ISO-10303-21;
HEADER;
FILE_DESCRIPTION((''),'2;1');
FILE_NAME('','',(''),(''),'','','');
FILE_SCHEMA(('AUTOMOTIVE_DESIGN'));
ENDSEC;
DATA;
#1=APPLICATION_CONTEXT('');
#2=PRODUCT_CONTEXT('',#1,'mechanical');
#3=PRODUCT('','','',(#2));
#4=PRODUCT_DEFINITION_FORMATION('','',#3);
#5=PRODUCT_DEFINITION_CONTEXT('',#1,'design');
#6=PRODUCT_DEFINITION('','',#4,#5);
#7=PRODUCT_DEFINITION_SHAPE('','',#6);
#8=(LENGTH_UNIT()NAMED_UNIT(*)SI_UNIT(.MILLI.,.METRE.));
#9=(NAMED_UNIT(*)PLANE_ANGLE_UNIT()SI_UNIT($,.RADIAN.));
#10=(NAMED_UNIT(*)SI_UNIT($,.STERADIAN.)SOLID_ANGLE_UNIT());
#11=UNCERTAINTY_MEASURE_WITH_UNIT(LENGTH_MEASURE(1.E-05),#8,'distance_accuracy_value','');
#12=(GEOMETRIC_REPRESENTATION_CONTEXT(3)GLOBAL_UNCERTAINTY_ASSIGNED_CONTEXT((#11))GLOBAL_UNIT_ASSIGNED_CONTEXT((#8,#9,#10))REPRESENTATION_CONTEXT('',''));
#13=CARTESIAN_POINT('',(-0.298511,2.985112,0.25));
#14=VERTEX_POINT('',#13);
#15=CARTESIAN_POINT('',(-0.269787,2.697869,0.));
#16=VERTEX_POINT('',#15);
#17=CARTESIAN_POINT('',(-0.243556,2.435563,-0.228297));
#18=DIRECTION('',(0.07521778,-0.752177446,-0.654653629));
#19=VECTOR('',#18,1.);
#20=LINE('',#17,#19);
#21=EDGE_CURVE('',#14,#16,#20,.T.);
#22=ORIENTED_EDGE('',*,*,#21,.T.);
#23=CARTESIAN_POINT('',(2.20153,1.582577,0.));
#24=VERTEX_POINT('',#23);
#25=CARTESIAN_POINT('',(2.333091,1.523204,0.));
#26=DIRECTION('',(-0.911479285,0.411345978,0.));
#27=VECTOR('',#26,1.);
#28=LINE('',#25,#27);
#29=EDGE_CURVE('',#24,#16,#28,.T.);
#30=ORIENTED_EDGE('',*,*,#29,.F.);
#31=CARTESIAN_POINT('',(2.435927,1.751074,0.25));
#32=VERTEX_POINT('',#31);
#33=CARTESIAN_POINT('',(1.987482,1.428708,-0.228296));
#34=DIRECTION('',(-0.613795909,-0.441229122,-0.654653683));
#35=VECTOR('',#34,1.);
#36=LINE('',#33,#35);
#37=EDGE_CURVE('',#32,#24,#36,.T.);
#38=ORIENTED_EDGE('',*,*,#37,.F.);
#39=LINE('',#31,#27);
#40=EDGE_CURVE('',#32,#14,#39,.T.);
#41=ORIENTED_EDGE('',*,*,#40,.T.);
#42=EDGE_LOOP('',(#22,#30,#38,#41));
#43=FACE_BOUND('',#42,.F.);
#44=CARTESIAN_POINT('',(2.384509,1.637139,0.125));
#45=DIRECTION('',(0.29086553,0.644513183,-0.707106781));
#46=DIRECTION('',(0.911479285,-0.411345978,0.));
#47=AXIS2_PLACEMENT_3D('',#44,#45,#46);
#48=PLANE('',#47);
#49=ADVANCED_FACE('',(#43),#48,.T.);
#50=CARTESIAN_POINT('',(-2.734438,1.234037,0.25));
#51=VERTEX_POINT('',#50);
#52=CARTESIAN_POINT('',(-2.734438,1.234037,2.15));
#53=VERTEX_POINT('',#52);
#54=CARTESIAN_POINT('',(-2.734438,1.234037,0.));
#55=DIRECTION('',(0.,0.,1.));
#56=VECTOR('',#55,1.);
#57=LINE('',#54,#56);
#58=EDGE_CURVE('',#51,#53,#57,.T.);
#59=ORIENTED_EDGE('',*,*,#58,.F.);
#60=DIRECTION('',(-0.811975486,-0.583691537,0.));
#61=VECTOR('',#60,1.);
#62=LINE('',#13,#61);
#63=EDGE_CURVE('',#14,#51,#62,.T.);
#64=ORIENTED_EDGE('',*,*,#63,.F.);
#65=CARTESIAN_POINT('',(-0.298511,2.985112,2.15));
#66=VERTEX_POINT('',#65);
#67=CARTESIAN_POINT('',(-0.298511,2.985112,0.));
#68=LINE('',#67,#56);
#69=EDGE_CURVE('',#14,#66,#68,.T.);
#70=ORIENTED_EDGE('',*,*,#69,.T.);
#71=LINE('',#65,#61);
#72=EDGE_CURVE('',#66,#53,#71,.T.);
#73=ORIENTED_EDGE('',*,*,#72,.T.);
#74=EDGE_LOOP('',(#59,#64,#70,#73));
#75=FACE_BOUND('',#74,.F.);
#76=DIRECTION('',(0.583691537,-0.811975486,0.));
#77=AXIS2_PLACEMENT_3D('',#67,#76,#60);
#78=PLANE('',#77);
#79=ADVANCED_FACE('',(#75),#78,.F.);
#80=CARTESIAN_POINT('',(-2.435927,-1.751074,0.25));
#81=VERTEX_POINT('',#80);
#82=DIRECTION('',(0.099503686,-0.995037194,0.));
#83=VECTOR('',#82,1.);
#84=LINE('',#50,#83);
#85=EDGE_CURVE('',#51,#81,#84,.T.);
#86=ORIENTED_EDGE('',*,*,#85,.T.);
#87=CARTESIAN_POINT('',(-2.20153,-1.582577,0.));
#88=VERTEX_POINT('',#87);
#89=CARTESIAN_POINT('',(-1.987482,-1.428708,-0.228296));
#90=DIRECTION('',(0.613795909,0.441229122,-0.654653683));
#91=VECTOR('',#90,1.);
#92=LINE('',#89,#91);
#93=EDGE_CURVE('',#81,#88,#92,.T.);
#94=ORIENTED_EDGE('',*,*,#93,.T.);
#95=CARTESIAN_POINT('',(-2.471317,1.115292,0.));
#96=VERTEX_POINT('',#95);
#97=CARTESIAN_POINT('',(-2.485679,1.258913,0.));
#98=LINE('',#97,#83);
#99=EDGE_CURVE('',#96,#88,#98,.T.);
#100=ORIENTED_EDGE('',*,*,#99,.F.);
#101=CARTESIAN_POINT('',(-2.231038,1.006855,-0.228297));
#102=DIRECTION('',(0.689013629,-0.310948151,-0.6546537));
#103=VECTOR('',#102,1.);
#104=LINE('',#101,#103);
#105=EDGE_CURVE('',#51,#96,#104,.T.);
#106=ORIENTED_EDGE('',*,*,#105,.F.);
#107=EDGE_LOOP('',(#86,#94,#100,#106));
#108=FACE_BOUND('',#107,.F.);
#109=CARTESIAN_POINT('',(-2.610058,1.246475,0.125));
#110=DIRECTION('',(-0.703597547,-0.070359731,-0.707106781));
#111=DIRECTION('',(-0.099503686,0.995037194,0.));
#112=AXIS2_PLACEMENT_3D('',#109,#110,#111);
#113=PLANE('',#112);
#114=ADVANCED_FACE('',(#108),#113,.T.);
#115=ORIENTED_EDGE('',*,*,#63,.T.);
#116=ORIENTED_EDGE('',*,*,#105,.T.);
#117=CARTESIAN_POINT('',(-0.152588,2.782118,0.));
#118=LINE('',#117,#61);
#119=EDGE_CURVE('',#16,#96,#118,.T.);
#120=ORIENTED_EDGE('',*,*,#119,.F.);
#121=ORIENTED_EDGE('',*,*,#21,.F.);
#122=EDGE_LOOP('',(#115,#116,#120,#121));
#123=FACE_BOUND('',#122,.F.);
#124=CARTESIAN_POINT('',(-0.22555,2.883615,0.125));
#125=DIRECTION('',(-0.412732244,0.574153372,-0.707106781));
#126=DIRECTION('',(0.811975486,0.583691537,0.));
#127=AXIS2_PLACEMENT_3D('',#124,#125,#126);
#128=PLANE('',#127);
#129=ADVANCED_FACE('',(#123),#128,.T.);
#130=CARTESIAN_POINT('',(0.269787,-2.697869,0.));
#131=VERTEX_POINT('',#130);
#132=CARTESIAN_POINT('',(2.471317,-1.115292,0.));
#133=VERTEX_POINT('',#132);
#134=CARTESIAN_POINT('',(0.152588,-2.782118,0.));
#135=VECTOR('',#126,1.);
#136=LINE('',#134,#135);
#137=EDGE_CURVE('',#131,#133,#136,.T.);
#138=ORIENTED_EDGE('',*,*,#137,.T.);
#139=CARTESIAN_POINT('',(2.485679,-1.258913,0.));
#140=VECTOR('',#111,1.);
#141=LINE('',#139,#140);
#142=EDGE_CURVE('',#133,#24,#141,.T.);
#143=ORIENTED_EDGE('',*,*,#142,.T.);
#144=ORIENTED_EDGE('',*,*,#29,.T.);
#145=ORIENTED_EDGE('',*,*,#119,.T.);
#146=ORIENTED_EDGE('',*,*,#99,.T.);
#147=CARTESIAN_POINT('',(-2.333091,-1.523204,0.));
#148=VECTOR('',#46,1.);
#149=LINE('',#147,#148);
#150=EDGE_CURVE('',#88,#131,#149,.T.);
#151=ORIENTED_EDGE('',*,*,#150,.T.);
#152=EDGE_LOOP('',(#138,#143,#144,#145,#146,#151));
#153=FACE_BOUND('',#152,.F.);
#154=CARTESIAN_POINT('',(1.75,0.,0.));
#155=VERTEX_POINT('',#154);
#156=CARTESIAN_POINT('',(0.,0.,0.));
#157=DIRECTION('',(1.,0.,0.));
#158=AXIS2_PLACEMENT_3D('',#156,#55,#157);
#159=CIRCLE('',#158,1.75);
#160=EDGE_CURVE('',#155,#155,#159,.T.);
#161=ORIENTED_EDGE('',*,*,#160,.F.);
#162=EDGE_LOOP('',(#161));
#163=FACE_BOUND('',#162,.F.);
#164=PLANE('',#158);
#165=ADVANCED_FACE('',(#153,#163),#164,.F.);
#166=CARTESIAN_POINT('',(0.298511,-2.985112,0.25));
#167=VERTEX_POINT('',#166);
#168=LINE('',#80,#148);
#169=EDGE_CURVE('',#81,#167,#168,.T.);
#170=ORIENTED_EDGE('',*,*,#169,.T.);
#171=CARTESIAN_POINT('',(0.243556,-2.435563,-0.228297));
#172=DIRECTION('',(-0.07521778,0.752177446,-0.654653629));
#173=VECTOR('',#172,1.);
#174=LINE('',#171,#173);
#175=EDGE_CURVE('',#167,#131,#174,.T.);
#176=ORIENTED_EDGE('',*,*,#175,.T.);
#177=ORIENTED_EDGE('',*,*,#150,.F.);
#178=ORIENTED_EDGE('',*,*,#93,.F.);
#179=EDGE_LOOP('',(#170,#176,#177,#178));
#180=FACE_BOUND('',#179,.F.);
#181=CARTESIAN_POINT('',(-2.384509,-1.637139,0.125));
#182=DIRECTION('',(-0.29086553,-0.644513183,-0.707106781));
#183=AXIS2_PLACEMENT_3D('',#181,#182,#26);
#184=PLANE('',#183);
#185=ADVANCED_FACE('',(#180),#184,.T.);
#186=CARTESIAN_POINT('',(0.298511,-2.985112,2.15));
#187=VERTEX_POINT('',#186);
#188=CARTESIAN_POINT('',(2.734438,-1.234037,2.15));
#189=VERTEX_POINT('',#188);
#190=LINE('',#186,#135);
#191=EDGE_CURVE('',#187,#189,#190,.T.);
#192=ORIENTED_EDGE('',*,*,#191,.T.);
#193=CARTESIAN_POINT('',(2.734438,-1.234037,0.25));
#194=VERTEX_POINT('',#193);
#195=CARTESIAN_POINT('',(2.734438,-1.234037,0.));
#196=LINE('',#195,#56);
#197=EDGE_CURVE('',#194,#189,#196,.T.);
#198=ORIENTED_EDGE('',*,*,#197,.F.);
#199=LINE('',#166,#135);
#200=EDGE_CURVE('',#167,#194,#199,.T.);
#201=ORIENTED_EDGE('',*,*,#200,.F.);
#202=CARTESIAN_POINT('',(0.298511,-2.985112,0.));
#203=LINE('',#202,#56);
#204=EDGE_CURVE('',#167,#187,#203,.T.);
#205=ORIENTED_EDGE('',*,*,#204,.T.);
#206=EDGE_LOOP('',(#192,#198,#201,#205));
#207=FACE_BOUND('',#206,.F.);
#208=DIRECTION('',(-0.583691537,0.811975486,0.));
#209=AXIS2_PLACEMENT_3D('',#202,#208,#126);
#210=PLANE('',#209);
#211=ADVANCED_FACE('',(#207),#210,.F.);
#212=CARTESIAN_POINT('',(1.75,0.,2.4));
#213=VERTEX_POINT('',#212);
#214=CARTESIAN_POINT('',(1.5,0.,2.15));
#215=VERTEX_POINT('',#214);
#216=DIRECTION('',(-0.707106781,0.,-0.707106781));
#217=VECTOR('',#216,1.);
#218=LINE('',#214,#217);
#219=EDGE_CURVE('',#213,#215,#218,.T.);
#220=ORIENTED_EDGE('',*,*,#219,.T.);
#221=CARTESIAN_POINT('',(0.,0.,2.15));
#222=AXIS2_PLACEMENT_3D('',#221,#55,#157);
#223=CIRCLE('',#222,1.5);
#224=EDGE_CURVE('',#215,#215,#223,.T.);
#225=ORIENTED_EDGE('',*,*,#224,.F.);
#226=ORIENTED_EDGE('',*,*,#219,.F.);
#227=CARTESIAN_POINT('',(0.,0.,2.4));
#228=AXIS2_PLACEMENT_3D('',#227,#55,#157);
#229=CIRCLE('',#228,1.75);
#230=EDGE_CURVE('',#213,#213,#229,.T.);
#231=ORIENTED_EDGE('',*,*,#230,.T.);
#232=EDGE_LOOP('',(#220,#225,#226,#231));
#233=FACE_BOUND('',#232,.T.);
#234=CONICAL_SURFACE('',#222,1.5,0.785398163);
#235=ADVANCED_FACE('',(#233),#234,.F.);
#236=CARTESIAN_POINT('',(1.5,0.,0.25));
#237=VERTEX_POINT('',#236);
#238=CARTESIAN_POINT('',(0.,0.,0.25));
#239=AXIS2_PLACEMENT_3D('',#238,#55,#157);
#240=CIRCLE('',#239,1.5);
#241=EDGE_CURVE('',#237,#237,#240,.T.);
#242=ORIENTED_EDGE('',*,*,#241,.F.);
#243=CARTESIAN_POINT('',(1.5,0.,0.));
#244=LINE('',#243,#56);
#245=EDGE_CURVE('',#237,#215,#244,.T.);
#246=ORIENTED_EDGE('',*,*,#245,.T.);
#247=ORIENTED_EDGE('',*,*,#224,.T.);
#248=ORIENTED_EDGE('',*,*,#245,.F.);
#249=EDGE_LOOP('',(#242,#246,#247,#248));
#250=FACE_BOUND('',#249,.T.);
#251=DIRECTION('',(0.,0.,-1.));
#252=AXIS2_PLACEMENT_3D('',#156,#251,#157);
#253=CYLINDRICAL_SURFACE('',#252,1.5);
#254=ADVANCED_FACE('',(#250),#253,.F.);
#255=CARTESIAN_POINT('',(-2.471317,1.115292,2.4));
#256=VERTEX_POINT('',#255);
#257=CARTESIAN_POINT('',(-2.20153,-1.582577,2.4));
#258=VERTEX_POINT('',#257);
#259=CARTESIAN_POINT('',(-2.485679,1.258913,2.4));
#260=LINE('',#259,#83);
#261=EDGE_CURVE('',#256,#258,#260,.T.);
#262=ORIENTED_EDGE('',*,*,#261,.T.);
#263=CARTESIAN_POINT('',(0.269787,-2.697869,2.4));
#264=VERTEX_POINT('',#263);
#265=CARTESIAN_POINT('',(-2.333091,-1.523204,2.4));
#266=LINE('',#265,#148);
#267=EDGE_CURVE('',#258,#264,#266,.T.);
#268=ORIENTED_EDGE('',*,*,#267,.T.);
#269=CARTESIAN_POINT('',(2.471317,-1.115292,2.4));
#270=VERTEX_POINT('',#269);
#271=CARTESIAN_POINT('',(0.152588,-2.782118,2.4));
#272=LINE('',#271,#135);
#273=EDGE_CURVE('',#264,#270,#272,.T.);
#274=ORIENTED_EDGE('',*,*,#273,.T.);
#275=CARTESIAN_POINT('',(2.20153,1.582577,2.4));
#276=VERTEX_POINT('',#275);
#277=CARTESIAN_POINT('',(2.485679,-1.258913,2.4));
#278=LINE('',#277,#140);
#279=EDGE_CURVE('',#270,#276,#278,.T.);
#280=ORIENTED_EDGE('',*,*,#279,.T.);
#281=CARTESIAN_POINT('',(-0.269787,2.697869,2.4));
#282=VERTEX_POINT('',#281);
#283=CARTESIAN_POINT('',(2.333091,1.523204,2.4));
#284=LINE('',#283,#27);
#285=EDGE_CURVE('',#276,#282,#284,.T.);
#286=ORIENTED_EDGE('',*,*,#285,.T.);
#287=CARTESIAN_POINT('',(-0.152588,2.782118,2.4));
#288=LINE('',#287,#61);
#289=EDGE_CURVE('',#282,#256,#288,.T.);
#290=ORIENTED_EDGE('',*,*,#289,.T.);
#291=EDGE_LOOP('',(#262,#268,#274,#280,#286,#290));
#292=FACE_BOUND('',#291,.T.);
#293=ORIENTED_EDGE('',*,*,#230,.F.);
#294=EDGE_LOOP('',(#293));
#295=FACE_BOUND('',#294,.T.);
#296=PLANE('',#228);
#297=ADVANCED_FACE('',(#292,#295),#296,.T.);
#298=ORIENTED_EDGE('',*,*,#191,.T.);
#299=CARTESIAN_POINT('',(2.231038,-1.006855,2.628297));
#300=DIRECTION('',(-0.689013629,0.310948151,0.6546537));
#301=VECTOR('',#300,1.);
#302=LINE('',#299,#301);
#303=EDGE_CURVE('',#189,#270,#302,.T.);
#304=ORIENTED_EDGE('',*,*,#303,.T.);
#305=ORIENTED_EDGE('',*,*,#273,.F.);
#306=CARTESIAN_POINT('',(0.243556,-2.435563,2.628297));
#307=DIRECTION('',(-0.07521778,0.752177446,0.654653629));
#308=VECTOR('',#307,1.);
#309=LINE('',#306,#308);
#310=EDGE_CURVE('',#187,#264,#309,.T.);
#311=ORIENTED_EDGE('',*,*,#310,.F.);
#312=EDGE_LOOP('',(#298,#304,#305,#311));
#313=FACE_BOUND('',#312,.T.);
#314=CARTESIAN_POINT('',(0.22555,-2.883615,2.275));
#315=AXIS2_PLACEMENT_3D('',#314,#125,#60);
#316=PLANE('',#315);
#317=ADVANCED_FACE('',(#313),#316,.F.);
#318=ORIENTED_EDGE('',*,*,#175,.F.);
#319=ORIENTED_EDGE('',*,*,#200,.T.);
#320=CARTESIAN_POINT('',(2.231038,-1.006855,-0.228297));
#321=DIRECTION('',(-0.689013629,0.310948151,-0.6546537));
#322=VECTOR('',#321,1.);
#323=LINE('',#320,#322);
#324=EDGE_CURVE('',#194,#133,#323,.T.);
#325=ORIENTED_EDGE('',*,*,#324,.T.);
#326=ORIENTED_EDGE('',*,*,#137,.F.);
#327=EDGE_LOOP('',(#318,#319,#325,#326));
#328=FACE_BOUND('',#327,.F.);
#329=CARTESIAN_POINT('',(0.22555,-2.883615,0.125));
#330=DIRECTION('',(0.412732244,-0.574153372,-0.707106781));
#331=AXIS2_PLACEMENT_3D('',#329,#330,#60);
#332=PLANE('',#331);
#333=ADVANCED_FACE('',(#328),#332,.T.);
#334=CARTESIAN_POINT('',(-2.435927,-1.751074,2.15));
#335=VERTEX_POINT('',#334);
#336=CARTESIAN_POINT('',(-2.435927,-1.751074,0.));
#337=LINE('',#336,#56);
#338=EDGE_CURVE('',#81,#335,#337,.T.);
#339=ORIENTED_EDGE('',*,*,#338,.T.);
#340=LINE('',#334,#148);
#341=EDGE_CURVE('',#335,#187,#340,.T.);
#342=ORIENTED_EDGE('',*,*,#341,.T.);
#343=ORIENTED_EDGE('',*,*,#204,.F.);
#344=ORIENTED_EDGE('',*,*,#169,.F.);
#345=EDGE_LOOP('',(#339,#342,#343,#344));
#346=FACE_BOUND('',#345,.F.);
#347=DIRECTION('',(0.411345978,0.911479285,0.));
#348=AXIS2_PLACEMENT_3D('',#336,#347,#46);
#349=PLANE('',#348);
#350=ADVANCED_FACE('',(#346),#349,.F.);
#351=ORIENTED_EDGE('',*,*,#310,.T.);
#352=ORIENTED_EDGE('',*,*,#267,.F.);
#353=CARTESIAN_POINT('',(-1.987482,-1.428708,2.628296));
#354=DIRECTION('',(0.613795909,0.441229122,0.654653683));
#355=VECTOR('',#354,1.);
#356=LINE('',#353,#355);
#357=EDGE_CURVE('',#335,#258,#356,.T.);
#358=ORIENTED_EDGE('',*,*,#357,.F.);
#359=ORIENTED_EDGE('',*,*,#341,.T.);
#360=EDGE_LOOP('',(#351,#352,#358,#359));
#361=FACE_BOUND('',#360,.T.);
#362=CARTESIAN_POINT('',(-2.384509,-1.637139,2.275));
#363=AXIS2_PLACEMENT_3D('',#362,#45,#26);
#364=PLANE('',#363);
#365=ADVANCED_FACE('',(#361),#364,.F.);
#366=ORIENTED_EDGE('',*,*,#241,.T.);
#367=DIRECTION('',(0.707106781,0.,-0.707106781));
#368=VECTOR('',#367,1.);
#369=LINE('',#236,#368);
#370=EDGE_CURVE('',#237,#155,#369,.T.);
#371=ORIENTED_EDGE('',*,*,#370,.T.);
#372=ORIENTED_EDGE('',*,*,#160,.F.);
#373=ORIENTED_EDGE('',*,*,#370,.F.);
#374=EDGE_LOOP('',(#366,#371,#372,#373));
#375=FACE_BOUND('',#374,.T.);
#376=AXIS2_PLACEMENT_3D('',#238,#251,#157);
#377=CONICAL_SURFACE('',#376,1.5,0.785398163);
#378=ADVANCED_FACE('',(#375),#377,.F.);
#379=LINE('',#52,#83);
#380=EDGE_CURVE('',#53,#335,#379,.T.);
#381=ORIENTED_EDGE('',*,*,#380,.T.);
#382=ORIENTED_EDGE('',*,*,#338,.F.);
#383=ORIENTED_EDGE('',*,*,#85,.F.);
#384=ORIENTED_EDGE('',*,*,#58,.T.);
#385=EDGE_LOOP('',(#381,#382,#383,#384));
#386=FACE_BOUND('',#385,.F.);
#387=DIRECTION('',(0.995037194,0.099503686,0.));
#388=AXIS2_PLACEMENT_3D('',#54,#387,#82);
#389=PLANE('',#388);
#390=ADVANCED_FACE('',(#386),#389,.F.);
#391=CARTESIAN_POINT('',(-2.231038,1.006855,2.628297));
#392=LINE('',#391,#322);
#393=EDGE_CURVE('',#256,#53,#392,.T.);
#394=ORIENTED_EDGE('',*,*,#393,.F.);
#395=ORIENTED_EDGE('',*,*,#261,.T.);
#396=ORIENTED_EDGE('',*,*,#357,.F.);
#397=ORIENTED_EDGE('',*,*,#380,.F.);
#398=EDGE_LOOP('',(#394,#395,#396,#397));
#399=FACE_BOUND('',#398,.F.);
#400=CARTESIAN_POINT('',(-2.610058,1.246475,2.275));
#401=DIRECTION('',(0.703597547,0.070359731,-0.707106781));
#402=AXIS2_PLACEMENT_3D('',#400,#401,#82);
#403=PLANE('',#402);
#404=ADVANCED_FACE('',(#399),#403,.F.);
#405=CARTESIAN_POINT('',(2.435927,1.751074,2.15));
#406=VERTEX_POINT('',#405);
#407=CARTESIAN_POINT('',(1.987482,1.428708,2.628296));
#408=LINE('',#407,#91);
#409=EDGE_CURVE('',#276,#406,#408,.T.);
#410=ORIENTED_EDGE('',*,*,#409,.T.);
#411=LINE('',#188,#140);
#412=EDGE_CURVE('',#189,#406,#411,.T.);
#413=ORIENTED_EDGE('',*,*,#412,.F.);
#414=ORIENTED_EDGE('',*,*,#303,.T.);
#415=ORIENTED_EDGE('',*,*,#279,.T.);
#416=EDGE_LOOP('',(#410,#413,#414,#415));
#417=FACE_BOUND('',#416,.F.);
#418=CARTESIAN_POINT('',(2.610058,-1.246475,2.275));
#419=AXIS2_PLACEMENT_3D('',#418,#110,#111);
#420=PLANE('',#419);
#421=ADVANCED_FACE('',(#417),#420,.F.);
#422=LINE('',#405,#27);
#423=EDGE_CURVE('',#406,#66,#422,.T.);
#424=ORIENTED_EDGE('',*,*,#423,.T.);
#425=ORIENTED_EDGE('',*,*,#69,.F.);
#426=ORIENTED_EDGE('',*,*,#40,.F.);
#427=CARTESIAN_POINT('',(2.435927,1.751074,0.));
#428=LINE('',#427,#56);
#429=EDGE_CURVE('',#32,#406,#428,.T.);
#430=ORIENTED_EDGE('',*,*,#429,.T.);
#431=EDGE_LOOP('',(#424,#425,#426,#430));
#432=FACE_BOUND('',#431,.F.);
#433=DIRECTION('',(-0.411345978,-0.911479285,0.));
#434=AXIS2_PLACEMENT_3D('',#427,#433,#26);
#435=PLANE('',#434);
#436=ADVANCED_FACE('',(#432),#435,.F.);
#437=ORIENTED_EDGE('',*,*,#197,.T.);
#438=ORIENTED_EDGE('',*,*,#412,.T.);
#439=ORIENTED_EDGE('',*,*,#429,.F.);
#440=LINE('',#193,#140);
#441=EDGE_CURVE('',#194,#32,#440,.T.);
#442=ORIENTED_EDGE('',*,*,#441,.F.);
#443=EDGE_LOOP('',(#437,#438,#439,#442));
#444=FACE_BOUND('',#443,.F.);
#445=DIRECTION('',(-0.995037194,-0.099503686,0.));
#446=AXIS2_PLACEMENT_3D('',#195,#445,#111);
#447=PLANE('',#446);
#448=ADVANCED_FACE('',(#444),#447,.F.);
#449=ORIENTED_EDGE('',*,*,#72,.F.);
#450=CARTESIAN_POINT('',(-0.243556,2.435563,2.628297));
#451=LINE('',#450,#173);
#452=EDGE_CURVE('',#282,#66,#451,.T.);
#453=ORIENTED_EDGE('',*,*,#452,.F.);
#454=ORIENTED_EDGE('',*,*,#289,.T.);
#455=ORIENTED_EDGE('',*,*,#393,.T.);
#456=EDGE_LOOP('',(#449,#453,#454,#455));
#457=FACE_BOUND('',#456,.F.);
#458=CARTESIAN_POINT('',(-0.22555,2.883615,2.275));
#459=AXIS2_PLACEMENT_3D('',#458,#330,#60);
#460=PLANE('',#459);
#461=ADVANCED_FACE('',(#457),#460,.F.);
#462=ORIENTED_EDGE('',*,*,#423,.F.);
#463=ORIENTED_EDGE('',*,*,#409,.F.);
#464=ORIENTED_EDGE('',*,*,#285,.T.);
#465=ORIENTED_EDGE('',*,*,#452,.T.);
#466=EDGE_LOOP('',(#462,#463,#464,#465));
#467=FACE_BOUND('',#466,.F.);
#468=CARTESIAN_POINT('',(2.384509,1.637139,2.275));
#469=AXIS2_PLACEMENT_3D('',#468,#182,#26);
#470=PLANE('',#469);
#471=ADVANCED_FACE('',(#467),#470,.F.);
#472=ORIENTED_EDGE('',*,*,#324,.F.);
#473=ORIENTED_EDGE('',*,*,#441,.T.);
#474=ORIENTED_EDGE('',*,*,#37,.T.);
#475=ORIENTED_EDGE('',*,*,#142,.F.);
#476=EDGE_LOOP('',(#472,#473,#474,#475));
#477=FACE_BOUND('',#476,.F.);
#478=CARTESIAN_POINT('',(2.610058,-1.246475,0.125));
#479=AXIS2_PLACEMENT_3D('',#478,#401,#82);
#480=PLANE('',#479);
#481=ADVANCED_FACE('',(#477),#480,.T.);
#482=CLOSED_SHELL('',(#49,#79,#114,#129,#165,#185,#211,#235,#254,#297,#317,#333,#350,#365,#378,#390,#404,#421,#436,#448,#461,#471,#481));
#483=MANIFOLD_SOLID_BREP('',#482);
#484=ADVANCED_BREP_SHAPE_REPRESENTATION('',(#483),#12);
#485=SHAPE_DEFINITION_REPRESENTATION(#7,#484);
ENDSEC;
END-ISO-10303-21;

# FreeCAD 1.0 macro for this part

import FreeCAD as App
import Part
import Sketcher
from FreeCAD import Vector
Q = App.Units.Quantity


def edges_at(feature, points):
    """Names of the edges that pass closest to the given points."""
    edges = feature.Shape.Edges
    near = lambda p: min(range(len(edges)), key=lambda i: edges[i].distToShape(Part.Vertex(*p))[0])
    return sorted({f"Edge{near(p) + 1}" for p in points})


def add_polygon(sketch, points):
    """Adds a closed chain of lines whose ends are joined by coincident constraints."""
    first, n = sketch.GeometryCount, len(points)
    for a, b in zip(points, points[1:] + points[:1]):
        sketch.addGeometry(Part.LineSegment(App.Vector(*a, 0), App.Vector(*b, 0)), False)
    for i in range(n):
        sketch.addConstraint(Sketcher.Constraint("Coincident", first + i, 2, first + (i + 1) % n, 1))

doc = App.newDocument("Part")
body = doc.addObject("PartDesign::Body", "Body")

sketch1 = body.newObject("Sketcher::SketchObject", "Sketch")
sketch1.AttachmentSupport = (doc.getObject("XY_Plane"), [""])
sketch1.MapMode = "FlatFace"
add_polygon(sketch1, [(0.3, -3), (2.7, -1.2), (2.4, 1.8), (-0.3, 3), (-2.7, 1.2), (-2.4, -1.8)])
sketch1.addGeometry(Part.Circle(Vector(0, 0, 0), Vector(0, 0, 1), 1.5), False)
sketch1.addConstraint(Sketcher.Constraint("Coincident", 6, 3, -1, 1))
sketch1.addConstraint(Sketcher.Constraint("Symmetric", 0, 2, 3, 2, -1, 1))
sketch1.addConstraint(Sketcher.Constraint("Symmetric", 1, 2, 4, 2, -1, 1))
sketch1.addConstraint(Sketcher.Constraint("Symmetric", 2, 2, 5, 2, -1, 1))
sketch1.addConstraint(Sketcher.Constraint("Equal", 0, 1))
sketch1.addConstraint(Sketcher.Constraint("Equal", 1, 2))
sketch1.addConstraint(Sketcher.Constraint("Diameter", 6, Q("3 mm")))
sketch1.addConstraint(Sketcher.Constraint("Distance", 0, Q("3.000001 mm")))
sketch1.addConstraint(Sketcher.Constraint("DistanceX", 2, 2, -1, 1, Q("0.298511 mm")))
sketch1.addConstraint(Sketcher.Constraint("DistanceY", -1, 1, 2, 2, Q("2.985112 mm")))
sketch1.addConstraint(Sketcher.Constraint("DistanceX", 1, 2, 0, 2, Q("0.298511 mm")))
pad1 = body.newObject("PartDesign::Pad", "Pad")
pad1.Profile = sketch1
pad1.Length = 2.4
doc.recompute()

chamfer = body.newObject("PartDesign::Chamfer", "Chamfer")
chamfer.Base = (pad1, edges_at(pad1, [
    (-1.069, -2.368, 0),
    (1.516, -2.11, 0),
    (2.585, 0.259, 0),
    (1.069, 2.368, 0),
    (-1.516, 2.11, 0),
    (-2.585, -0.259, 0),
    (-1.5, 0, 0),
]))
chamfer.Size = 0.25
doc.recompute()

chamfer2 = body.newObject("PartDesign::Chamfer", "Chamfer001")
chamfer2.Base = (chamfer, edges_at(chamfer, [
    (-1.069, -2.368, 2.4),
    (1.516, -2.11, 2.4),
    (2.585, 0.259, 2.4),
    (1.069, 2.368, 2.4),
    (-1.516, 2.11, 2.4),
    (-2.585, -0.259, 2.4),
    (-1.5, 0, 2.4),
]))
chamfer2.Size = 0.25

doc.recompute()
